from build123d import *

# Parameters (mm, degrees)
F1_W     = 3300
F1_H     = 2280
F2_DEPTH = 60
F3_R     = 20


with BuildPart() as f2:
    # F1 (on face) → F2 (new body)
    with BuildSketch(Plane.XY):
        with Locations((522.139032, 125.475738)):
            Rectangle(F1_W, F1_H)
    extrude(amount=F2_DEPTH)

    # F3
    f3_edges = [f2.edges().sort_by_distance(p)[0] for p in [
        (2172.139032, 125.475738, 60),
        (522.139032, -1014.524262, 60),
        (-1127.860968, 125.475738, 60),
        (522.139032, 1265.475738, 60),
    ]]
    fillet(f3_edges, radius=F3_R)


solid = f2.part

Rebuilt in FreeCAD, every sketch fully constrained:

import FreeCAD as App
import Part
import Sketcher
from FreeCAD import Vector
Q = App.Units.Quantity


def edges_at(feature, points):
    """Names of the edges that pass closest to the given points."""
    edges = feature.Shape.Edges
    near = lambda p: min(range(len(edges)), key=lambda i: edges[i].distToShape(Part.Vertex(*p))[0])
    return sorted({f"Edge{near(p) + 1}" for p in points})


def add_polygon(sketch, points):
    """Adds a closed chain of lines whose ends are joined by coincident constraints."""
    first, n = sketch.GeometryCount, len(points)
    for a, b in zip(points, points[1:] + points[:1]):
        sketch.addGeometry(Part.LineSegment(App.Vector(*a, 0), App.Vector(*b, 0)), False)
    for i in range(n):
        sketch.addConstraint(Sketcher.Constraint("Coincident", first + i, 2, first + (i + 1) % n, 1))

doc = App.newDocument("Part")
body = doc.addObject("PartDesign::Body", "Body")

sketch1 = doc.addObject("Sketcher::SketchObject", "Sketch")
body.addObject(sketch1)
sketch1.AttachmentSupport = (doc.XY_Plane, [""])
sketch1.MapMode = "FlatFace"
add_polygon(sketch1, [(-1127.860968, 1265.475738), (-1127.860968, -1014.524262), (2172.139032, -1014.524262), (2172.139032, 1265.475738)])
sketch1.addConstraint(Sketcher.Constraint("Vertical", 0))
sketch1.addConstraint(Sketcher.Constraint("Horizontal", 1))
sketch1.addConstraint(Sketcher.Constraint("Vertical", 2))
sketch1.addConstraint(Sketcher.Constraint("Horizontal", 3))
sketch1.addConstraint(Sketcher.Constraint("DistanceX", 1, 1, 1, 2, Q("3300 mm")))
sketch1.addConstraint(Sketcher.Constraint("DistanceY", 0, 2, 0, 1, Q("2280 mm")))
sketch1.addConstraint(Sketcher.Constraint("DistanceX", 0, 2, -1, 1, Q("1127.860968 mm")))
sketch1.addConstraint(Sketcher.Constraint("DistanceY", 0, 2, -1, 1, Q("1014.524262 mm")))
pad1 = doc.addObject("PartDesign::Pad", "Pad")
body.addObject(pad1)
pad1.Profile = sketch1
pad1.Length = 60
doc.recompute()

fillet = doc.addObject("PartDesign::Fillet", "Fillet")
body.addObject(fillet)
fillet.Base = (pad1, edges_at(pad1, [
    (2172.139, 125.476, 60),
    (522.139, -1014.524, 60),
    (-1127.861, 125.476, 60),
    (522.139, 1265.476, 60),
]))
fillet.Radius = 20

doc.recompute()
